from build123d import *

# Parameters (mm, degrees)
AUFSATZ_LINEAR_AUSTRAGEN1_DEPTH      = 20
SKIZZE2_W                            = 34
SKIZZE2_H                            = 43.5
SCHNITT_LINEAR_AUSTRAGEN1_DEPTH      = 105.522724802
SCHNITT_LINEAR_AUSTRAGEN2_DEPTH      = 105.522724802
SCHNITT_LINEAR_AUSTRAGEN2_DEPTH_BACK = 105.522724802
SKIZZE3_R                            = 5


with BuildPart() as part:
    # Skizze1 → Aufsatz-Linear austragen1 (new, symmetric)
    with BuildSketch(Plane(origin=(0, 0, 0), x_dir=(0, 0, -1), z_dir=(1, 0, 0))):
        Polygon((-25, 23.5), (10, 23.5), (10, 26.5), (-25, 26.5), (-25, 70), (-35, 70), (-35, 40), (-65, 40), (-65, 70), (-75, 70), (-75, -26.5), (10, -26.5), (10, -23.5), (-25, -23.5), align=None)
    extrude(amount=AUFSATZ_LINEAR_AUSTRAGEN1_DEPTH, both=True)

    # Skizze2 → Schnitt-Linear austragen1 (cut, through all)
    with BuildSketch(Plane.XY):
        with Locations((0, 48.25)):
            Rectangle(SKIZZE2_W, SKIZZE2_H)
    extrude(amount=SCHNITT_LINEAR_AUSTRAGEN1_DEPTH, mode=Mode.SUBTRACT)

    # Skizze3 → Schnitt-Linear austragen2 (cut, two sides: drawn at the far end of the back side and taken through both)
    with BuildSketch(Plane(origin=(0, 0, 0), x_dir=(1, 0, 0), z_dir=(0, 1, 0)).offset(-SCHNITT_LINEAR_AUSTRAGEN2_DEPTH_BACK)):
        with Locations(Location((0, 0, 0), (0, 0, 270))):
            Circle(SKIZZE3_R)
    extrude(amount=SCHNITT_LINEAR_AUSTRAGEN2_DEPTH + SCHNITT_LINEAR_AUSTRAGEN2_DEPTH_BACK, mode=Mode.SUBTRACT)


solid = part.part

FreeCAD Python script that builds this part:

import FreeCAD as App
import Part
import Sketcher


def add_polygon(sketch, points):
    """Adds a closed chain of lines whose ends are joined by coincident constraints."""
    first, n = sketch.GeometryCount, len(points)
    for a, b in zip(points, points[1:] + points[:1]):
        sketch.addGeometry(Part.LineSegment(App.Vector(*a, 0), App.Vector(*b, 0)), False)
    for i in range(n):
        sketch.addConstraint(Sketcher.Constraint("Coincident", first + i, 2, first + (i + 1) % n, 1))

doc = App.newDocument("Part")
body = doc.addObject("PartDesign::Body", "Body")

# Sketch on YZ plane
sketch1 = body.newObject("Sketcher::SketchObject", "Sketch")
sketch1.AttachmentSupport = (doc.getObject("YZ_Plane"), [""])
sketch1.MapMode = "FlatFace"
add_polygon(sketch1, [(23.5, 25), (23.5, -10), (26.5, -10), (26.5, 25), (70, 25), (70, 35), (40, 35), (40, 65), (70, 65), (70, 75), (-26.5, 75), (-26.5, -10), (-23.5, -10), (-23.5, 25)])  # lines 0-13
sketch1.addConstraint(Sketcher.Constraint("Vertical", 0))
sketch1.addConstraint(Sketcher.Constraint("Horizontal", 1))
sketch1.addConstraint(Sketcher.Constraint("Vertical", 2))
sketch1.addConstraint(Sketcher.Constraint("Horizontal", 3))
sketch1.addConstraint(Sketcher.Constraint("Vertical", 4))
sketch1.addConstraint(Sketcher.Constraint("Horizontal", 5))
sketch1.addConstraint(Sketcher.Constraint("Vertical", 6))
sketch1.addConstraint(Sketcher.Constraint("Horizontal", 7))
sketch1.addConstraint(Sketcher.Constraint("Vertical", 8))
sketch1.addConstraint(Sketcher.Constraint("Horizontal", 9))
sketch1.addConstraint(Sketcher.Constraint("Vertical", 10))
sketch1.addConstraint(Sketcher.Constraint("Horizontal", 11))
sketch1.addConstraint(Sketcher.Constraint("Vertical", 12))
sketch1.addConstraint(Sketcher.Constraint("Horizontal", 13))
sketch1.addConstraint(Sketcher.Constraint("Symmetric", 1, 2, 10, 2, -2))
sketch1.addConstraint(Sketcher.Constraint("Horizontal", 3, 2, 12, 2))
sketch1.addConstraint(Sketcher.Constraint("Vertical", 4, 2, 7, 2))
sketch1.addConstraint(Sketcher.Constraint("Equal", 1, 11))
sketch1.addConstraint(Sketcher.Constraint("Equal", 7, 6))
sketch1.addConstraint(Sketcher.Constraint("Equal", 4, 8))
sketch1.addConstraint(Sketcher.Constraint("DistanceX", 1, 1, 1, 2, 3.0))
sketch1.addConstraint(Sketcher.Constraint("DistanceX", 5, 2, 5, 1, 30.0))
sketch1.addConstraint(Sketcher.Constraint("DistanceX", 13, 1, 13, 2, 47.0))
sketch1.addConstraint(Sketcher.Constraint("DistanceY", 0, 2, 0, 1, 35.0))
sketch1.addConstraint(Sketcher.Constraint("DistanceY", 4, 1, 4, 2, 10.0))
sketch1.addConstraint(Sketcher.Constraint("DistanceX", 3, 1, 3, 2, 43.5))
sketch1.addConstraint(Sketcher.Constraint("DistanceY", 0, 2, -1, 1, 10.0))
pad1 = body.newObject("PartDesign::Pad", "Pad")
pad1.Profile = sketch1
pad1.Length = 40
pad1.Midplane = True

# Sketch on XY plane
sketch2 = body.newObject("Sketcher::SketchObject", "Sketch001")
sketch2.AttachmentSupport = (doc.getObject("XY_Plane"), [""])
sketch2.MapMode = "FlatFace"
add_polygon(sketch2, [(-17, 70), (-17, 26), (17, 26), (17, 70)])  # lines 0-3
sketch2.addConstraint(Sketcher.Constraint("Vertical", 0))
sketch2.addConstraint(Sketcher.Constraint("Horizontal", 1))
sketch2.addConstraint(Sketcher.Constraint("Vertical", 2))
sketch2.addConstraint(Sketcher.Constraint("Horizontal", 3))
sketch2.addConstraint(Sketcher.Constraint("DistanceX", 1, 1, 1, 2, 34.0))
sketch2.addConstraint(Sketcher.Constraint("DistanceY", 0, 2, 0, 1, 43.5))
sketch2.addConstraint(Sketcher.Constraint("DistanceX", 0, 2, -1, 1, 17.0))
sketch2.addConstraint(Sketcher.Constraint("DistanceY", -1, 1, 2, 2, 70.0))
pocket1 = body.newObject("PartDesign::Pocket", "Pocket")
pocket1.Profile = sketch2
pocket1.Type = "ThroughAll"
pocket1.Reversed = True

# Sketch on XZ plane
sketch3 = body.newObject("Sketcher::SketchObject", "Sketch002")
sketch3.AttachmentSupport = (doc.getObject("XZ_Plane"), [""])
sketch3.MapMode = "FlatFace"
sketch3.addGeometry(Part.Circle(App.Vector(0, 0, 0), App.Vector(0, 0, 1), 5), False)
sketch3.addConstraint(Sketcher.Constraint("Coincident", 0, 3, -1, 1))
sketch3.addConstraint(Sketcher.Constraint("Diameter", 0, 10.0))
pocket2 = body.newObject("PartDesign::Pocket", "Pocket001")
pocket2.Profile = sketch3
pocket2.Type = "ThroughAll"
pocket2.Midplane = True

doc.recompute()
